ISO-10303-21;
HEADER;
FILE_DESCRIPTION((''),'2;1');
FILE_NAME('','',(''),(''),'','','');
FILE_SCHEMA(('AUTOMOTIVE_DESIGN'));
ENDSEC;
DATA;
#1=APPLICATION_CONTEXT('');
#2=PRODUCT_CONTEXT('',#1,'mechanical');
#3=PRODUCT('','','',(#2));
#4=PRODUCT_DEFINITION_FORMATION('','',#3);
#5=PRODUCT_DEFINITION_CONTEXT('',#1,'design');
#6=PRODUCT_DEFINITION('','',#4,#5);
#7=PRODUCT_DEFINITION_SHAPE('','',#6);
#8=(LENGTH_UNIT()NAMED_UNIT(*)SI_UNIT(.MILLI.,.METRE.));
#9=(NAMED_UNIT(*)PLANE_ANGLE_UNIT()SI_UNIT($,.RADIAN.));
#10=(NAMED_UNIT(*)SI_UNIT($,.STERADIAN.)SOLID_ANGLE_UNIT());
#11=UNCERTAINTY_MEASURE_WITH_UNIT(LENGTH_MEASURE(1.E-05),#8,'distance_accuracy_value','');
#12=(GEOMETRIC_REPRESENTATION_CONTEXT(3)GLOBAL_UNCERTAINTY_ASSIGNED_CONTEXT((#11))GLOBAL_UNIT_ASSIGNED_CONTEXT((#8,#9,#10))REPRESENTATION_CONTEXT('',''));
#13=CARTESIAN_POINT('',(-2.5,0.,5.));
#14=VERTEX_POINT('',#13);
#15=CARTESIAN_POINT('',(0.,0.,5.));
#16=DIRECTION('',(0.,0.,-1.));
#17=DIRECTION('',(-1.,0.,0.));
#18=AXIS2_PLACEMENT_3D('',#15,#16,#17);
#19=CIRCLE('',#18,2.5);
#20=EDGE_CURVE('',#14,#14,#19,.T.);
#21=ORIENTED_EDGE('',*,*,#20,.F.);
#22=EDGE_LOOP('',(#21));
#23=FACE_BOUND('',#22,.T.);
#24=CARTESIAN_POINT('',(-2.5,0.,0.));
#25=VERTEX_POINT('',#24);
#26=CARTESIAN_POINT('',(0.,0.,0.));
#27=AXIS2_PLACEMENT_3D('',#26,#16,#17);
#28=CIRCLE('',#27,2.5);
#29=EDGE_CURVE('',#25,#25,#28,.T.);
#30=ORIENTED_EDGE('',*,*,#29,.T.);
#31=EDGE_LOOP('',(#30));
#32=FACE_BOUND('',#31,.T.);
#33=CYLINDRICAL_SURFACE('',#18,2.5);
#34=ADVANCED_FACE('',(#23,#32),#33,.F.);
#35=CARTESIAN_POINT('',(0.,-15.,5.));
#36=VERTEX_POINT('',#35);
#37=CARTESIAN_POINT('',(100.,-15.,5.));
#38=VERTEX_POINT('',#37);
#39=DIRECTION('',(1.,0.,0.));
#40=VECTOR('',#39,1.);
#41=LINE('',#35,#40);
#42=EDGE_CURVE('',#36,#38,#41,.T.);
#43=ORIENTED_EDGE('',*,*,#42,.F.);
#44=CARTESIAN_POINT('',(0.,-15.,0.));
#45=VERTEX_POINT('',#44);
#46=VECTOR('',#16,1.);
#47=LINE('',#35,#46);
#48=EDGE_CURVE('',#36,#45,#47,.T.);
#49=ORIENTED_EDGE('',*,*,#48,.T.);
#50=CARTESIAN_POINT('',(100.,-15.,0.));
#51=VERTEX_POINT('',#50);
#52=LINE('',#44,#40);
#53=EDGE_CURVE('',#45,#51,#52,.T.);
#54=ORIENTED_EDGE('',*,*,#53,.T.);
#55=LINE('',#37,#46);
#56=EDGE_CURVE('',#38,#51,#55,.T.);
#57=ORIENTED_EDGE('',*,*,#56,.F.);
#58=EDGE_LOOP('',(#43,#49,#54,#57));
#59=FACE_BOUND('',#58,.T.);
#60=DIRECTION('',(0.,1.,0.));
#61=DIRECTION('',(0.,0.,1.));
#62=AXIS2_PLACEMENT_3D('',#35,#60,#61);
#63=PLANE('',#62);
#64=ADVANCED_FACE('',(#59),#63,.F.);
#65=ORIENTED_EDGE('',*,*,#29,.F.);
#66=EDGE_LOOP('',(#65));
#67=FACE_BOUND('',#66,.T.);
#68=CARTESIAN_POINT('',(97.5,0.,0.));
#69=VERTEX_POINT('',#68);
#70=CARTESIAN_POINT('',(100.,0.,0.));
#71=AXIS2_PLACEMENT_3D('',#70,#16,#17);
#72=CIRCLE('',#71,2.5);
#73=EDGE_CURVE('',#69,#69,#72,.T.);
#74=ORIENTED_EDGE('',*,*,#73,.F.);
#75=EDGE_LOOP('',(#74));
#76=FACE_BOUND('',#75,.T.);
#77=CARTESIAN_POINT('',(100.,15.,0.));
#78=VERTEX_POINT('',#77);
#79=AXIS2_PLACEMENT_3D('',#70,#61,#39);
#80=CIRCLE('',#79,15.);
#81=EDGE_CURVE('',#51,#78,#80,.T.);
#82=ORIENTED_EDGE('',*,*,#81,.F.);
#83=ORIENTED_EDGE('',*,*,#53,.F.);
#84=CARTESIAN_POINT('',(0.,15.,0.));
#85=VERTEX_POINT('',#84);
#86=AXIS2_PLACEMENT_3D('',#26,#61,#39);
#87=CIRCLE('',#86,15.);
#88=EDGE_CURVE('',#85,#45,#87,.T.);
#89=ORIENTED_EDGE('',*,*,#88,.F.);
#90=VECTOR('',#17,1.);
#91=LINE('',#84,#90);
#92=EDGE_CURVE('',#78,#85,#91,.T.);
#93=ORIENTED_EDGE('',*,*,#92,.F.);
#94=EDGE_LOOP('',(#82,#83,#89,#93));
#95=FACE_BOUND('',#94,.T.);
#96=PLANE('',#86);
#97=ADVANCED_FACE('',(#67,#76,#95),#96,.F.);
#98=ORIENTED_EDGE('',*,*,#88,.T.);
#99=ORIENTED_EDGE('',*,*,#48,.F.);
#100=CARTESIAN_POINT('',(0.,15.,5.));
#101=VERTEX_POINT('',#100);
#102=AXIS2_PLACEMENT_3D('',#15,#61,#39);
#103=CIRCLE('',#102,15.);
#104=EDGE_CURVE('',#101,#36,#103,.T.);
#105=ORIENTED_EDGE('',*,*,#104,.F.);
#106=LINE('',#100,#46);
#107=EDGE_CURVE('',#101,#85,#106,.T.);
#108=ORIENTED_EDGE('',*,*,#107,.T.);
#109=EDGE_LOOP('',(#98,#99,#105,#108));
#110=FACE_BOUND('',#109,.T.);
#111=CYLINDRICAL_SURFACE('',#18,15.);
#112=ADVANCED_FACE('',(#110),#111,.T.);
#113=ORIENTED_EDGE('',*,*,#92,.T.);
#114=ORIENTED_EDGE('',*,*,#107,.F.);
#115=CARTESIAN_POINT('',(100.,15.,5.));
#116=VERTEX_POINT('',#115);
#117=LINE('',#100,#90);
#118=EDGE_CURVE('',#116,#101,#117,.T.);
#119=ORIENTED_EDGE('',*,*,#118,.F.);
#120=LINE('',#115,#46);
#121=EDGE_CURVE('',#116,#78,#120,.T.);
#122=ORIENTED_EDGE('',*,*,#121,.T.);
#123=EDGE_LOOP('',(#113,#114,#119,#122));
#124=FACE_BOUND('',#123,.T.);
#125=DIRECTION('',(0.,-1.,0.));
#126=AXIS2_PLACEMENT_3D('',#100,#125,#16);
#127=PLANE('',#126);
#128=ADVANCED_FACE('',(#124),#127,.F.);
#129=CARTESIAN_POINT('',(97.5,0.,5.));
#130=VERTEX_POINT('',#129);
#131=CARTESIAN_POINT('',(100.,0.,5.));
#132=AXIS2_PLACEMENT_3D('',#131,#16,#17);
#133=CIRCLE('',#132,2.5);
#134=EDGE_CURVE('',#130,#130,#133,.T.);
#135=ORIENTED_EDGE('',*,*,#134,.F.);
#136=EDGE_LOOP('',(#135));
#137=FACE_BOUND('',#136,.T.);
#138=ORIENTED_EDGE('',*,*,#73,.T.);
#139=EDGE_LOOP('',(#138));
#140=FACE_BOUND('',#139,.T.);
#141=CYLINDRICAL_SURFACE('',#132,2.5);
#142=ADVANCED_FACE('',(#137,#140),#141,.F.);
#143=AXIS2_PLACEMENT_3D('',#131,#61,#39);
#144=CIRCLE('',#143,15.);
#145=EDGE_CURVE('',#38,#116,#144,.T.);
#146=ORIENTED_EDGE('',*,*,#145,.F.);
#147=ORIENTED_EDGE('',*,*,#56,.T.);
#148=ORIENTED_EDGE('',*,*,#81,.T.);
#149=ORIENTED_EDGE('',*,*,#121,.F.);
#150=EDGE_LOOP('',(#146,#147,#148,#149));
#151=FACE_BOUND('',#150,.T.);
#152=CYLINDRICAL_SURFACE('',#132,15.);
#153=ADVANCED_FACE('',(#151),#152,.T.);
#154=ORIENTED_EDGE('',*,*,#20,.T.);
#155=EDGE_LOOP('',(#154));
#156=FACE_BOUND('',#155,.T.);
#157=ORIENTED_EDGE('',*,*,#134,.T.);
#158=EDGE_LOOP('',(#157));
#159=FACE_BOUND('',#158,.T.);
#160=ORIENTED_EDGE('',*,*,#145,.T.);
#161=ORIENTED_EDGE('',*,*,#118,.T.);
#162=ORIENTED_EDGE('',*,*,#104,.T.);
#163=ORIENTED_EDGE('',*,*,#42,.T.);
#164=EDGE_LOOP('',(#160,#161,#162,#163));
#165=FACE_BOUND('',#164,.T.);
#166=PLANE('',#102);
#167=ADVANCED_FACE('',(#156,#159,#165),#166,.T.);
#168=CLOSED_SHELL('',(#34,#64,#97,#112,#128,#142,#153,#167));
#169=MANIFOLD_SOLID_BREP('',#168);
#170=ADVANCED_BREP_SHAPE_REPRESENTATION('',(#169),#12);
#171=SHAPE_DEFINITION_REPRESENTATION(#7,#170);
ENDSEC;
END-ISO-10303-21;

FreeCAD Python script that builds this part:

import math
import FreeCAD as App
import Part
import Sketcher

V = App.Vector
Q = App.Units.Quantity

doc = App.newDocument("Part")
body = doc.addObject("PartDesign::Body", "Body")

# Sketch on XY plane
sketch1 = doc.addObject("Sketcher::SketchObject", "Sketch")
body.addObject(sketch1)
sketch1.AttachmentSupport = (doc.XY_Plane, [""])
sketch1.MapMode = "FlatFace"
sketch1.addGeometry([
    Part.LineSegment(V(100, 15, 0), V(0, 15, 0)),
    Part.ArcOfCircle(Part.Circle(V(0, 0, 0), V(0, 0, 1), 15), math.radians(90), math.radians(270)),
    Part.LineSegment(V(0, -15, 0), V(100, -15, 0)),
    Part.ArcOfCircle(Part.Circle(V(100, 0, 0), V(0, 0, 1), 15), math.radians(-90), math.radians(90)),
], False)
sketch1.addConstraint([
    Sketcher.Constraint("Tangent", 0, 2, 1, 1),
    Sketcher.Constraint("Tangent", 1, 2, 2, 1),
    Sketcher.Constraint("Tangent", 2, 2, 3, 1),
    Sketcher.Constraint("Tangent", 3, 2, 0, 1),
    Sketcher.Constraint("Horizontal", 0),
    Sketcher.Constraint("Horizontal", 2),
    Sketcher.Constraint("Coincident", 1, 3, -1, 1),
    Sketcher.Constraint("Radius", 1, Q("15 mm")),
    Sketcher.Constraint("DistanceX", 0, 2, 0, 1, Q("100 mm")),
])
pad1 = doc.addObject("PartDesign::Pad", "Pad")
body.addObject(pad1)
pad1.Profile = sketch1
pad1.Length = 5

# Sketch on XY plane
sketch2 = doc.addObject("Sketcher::SketchObject", "Sketch001")
body.addObject(sketch2)
sketch2.AttachmentSupport = (doc.XY_Plane, [""])
sketch2.MapMode = "FlatFace"
sketch2.addGeometry([
    Part.Circle(V(0, 0, 0), V(0, 0, 1), 2.5),
    Part.Circle(V(100, 0, 0), V(0, 0, 1), 2.5),
], False)
sketch2.addConstraint([
    Sketcher.Constraint("Coincident", 0, 3, -1, 1),
    Sketcher.Constraint("Equal", 0, 1),
    Sketcher.Constraint("PointOnObject", 1, 3, -1),
    Sketcher.Constraint("Diameter", 0, Q("5 mm")),
    Sketcher.Constraint("DistanceX", -1, 1, 1, 3, Q("100 mm")),
])
pocket1 = doc.addObject("PartDesign::Pocket", "Pocket")
body.addObject(pocket1)
pocket1.Profile = sketch2
pocket1.Type = "ThroughAll"
pocket1.Reversed = True

doc.recompute()
